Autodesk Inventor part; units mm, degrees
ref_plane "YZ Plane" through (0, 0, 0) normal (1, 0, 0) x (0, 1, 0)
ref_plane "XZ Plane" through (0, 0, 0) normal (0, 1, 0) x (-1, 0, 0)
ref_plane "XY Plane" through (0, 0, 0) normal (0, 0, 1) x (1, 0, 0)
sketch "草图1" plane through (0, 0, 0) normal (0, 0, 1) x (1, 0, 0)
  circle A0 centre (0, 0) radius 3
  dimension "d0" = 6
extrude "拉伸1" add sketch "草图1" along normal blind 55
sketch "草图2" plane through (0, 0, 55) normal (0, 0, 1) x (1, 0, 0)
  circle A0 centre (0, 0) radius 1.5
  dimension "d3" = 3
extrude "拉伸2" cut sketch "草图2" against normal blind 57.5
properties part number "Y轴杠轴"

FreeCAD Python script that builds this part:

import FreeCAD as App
import Part
import Sketcher

V = App.Vector
Q = App.Units.Quantity

doc = App.newDocument("Part")
body = doc.addObject("PartDesign::Body", "Body")

# Sketch on XY plane
sketch1 = body.newObject("Sketcher::SketchObject", "Sketch")
sketch1.AttachmentSupport = (doc.getObject("XY_Plane"), [""])
sketch1.MapMode = "FlatFace"
sketch1.addGeometry(Part.Circle(V(0, 0, 0), V(0, 0, 1), 3), False)
sketch1.addConstraint(Sketcher.Constraint("Coincident", 0, 3, -1, 1))
sketch1.addConstraint(Sketcher.Constraint("Diameter", 0, Q("6 mm")))
pad1 = body.newObject("PartDesign::Pad", "Pad")
pad1.Profile = sketch1
pad1.Length = 55

# Sketch on XY plane
sketch2 = body.newObject("Sketcher::SketchObject", "Sketch001")
sketch2.AttachmentSupport = (doc.getObject("XY_Plane"), [""])
sketch2.MapMode = "FlatFace"
sketch2.AttachmentOffset = App.Placement(V(0, 0, 55), App.Rotation())
sketch2.addGeometry(Part.Circle(V(0, 0, 0), V(0, 0, 1), 1.5), False)
sketch2.addConstraint(Sketcher.Constraint("Coincident", 0, 3, -1, 1))
sketch2.addConstraint(Sketcher.Constraint("Diameter", 0, Q("3 mm")))
pocket1 = body.newObject("PartDesign::Pocket", "Pocket")
pocket1.Profile = sketch2
pocket1.Length = 57.5

doc.recompute()
